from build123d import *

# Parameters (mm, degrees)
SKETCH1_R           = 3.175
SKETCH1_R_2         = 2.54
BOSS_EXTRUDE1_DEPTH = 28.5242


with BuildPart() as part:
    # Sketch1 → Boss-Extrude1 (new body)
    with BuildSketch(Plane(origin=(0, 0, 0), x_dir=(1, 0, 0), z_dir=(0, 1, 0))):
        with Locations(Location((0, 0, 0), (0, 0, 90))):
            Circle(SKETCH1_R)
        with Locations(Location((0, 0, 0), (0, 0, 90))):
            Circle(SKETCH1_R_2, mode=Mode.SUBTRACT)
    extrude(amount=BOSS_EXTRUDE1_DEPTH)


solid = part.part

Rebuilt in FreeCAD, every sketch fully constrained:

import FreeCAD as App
import Part
import Sketcher
from FreeCAD import Vector
Q = App.Units.Quantity

doc = App.newDocument("Part")
body = doc.addObject("PartDesign::Body", "Body")

# Sketch on XZ plane
sketch1 = body.newObject("Sketcher::SketchObject", "Sketch")
sketch1.AttachmentSupport = (doc.getObject("XZ_Plane"), [""])
sketch1.MapMode = "FlatFace"
sketch1.addGeometry([
    Part.Circle(Vector(0, 0, 0), Vector(0, 0, 1), 3.2),
    Part.Circle(Vector(0, 0, 0), Vector(0, 0, 1), 2.5),
], False)
sketch1.addConstraint([
    Sketcher.Constraint("Coincident", 0, 3, -1, 1),
    Sketcher.Constraint("Coincident", 1, 3, -1, 1),
    Sketcher.Constraint("Diameter", 1, Q("0.2 in")),
    Sketcher.Constraint("Diameter", 0, Q("0.25 in")),
])
pad1 = body.newObject("PartDesign::Pad", "Pad")
pad1.Profile = sketch1
pad1.Length = Q("1.123 in")
pad1.Reversed = True

doc.recompute()
